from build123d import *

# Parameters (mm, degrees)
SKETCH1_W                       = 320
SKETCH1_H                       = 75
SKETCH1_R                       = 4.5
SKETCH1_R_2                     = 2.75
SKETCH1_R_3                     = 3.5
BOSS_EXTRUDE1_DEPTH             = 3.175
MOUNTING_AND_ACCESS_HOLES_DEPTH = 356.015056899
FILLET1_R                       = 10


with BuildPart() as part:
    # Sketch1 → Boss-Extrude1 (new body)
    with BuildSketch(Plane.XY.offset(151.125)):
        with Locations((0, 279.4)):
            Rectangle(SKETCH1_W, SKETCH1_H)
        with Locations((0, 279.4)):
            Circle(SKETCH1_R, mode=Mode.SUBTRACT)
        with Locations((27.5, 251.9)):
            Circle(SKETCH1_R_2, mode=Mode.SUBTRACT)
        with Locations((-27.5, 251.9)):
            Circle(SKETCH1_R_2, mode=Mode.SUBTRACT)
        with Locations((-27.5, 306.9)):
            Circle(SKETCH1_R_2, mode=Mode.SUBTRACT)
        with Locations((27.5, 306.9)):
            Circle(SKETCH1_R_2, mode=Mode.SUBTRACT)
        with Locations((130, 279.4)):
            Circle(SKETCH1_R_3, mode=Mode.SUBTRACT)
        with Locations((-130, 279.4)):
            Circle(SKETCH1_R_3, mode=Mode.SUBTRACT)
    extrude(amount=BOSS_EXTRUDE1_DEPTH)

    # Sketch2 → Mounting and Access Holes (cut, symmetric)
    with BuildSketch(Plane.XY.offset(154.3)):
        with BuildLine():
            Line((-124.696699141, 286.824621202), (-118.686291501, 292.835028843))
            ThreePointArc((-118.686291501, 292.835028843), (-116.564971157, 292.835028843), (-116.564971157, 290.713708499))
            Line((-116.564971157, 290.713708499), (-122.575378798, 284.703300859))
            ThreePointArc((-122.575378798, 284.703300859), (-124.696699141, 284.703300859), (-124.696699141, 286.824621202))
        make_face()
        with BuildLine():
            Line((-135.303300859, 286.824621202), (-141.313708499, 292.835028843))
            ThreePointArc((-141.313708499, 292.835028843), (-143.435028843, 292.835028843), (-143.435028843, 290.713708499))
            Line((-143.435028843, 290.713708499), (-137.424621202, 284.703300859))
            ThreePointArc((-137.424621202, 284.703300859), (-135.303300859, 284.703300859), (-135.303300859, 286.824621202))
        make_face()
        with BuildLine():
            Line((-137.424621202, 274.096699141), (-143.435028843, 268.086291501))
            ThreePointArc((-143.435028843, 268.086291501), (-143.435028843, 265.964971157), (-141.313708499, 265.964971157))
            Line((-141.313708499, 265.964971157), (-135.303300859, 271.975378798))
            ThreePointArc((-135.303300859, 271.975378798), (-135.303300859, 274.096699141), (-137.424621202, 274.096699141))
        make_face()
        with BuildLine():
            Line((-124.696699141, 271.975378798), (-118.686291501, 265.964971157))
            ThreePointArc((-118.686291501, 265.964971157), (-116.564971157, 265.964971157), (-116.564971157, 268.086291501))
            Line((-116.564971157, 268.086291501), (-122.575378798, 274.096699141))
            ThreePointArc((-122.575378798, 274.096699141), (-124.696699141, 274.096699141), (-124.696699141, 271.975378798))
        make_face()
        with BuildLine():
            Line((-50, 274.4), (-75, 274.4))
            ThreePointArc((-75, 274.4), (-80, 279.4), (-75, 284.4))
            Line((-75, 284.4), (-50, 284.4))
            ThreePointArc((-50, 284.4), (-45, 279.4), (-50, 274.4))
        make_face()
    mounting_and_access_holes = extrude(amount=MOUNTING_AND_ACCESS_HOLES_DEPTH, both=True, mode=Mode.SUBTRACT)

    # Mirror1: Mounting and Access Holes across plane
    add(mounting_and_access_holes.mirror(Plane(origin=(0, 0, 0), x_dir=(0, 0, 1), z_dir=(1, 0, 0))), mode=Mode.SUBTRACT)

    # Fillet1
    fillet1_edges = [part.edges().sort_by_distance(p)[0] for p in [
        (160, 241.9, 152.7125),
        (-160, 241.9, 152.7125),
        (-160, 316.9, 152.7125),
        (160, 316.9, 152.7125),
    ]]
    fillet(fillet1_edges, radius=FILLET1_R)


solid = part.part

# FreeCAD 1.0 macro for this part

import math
import FreeCAD as App
import Part
import Sketcher

V = App.Vector


def edges_at(feature, points):
    """Names of the edges that pass closest to the given points."""
    edges = feature.Shape.Edges
    near = lambda p: min(range(len(edges)), key=lambda i: edges[i].distToShape(Part.Vertex(*p))[0])
    return sorted({f"Edge{near(p) + 1}" for p in points})

doc = App.newDocument("Part")
body = doc.addObject("PartDesign::Body", "Body")

# Sketch on XY plane
sketch1 = doc.addObject("Sketcher::SketchObject", "Sketch")
body.addObject(sketch1)
sketch1.AttachmentSupport = (doc.XY_Plane, [""])
sketch1.MapMode = "FlatFace"
sketch1.AttachmentOffset = App.Placement(V(0, 0, 151.125), App.Rotation())
sketch1.addGeometry(Part.LineSegment(V(-160, 316.9, 0), V(-160, 241.9, 0)), False)
sketch1.addGeometry(Part.LineSegment(V(-160, 241.9, 0), V(160, 241.9, 0)), False)
sketch1.addGeometry(Part.LineSegment(V(160, 241.9, 0), V(160, 316.9, 0)), False)
sketch1.addGeometry(Part.LineSegment(V(160, 316.9, 0), V(-160, 316.9, 0)), False)
sketch1.addGeometry(Part.Circle(V(-27.5, 251.9, 0), V(0, 0, 1), 2.8), False)
sketch1.addGeometry(Part.Circle(V(-130, 279.4, 0), V(0, 0, 1), 3.5), False)
sketch1.addGeometry(Part.Circle(V(27.5, 251.9, 0), V(0, 0, 1), 2.8), False)
sketch1.addGeometry(Part.Circle(V(0, 279.4, 0), V(0, 0, 1), 4.5), False)
sketch1.addGeometry(Part.Circle(V(130, 279.4, 0), V(0, 0, 1), 3.5), False)
sketch1.addGeometry(Part.Circle(V(-27.5, 306.9, 0), V(0, 0, 1), 2.8), False)
sketch1.addGeometry(Part.Circle(V(27.5, 306.9, 0), V(0, 0, 1), 2.8), False)
sketch1.addConstraint(Sketcher.Constraint("Coincident", 0, 2, 1, 1))
sketch1.addConstraint(Sketcher.Constraint("Coincident", 1, 2, 2, 1))
sketch1.addConstraint(Sketcher.Constraint("Coincident", 2, 2, 3, 1))
sketch1.addConstraint(Sketcher.Constraint("Coincident", 3, 2, 0, 1))
sketch1.addConstraint(Sketcher.Constraint("Vertical", 0))
sketch1.addConstraint(Sketcher.Constraint("Horizontal", 1))
sketch1.addConstraint(Sketcher.Constraint("Vertical", 2))
sketch1.addConstraint(Sketcher.Constraint("Horizontal", 3))
sketch1.addConstraint(Sketcher.Constraint("Equal", 4, 6))
sketch1.addConstraint(Sketcher.Constraint("Equal", 5, 8))
sketch1.addConstraint(Sketcher.Constraint("Equal", 6, 9))
sketch1.addConstraint(Sketcher.Constraint("Equal", 9, 10))
sketch1.addConstraint(Sketcher.Constraint("Symmetric", 4, 3, 6, 3, -2))
sketch1.addConstraint(Sketcher.Constraint("Symmetric", 5, 3, 8, 3, -2))
sketch1.addConstraint(Sketcher.Constraint("Symmetric", 9, 3, 10, 3, -2))
sketch1.addConstraint(Sketcher.Constraint("PointOnObject", 7, 3, -2))
sketch1.addConstraint(Sketcher.Constraint("Horizontal", 5, 3, 7, 3))
sketch1.addConstraint(Sketcher.Constraint("Vertical", 4, 3, 9, 3))
sketch1.addConstraint(Sketcher.Constraint("Diameter", 5, 7.0))
sketch1.addConstraint(Sketcher.Constraint("Diameter", 7, 9.0))
sketch1.addConstraint(Sketcher.Constraint("Diameter", 4, 5.5))
sketch1.addConstraint(Sketcher.Constraint("DistanceX", 1, 1, 1, 2, 320.0))
sketch1.addConstraint(Sketcher.Constraint("DistanceY", 0, 2, 0, 1, 75.0))
sketch1.addConstraint(Sketcher.Constraint("DistanceX", 5, 3, -1, 1, 130.0))
sketch1.addConstraint(Sketcher.Constraint("DistanceX", 0, 2, -1, 1, 160.0))
sketch1.addConstraint(Sketcher.Constraint("DistanceX", 4, 3, 6, 3, 55.0))
sketch1.addConstraint(Sketcher.Constraint("DistanceY", 4, 3, 9, 3, 55.0))
sketch1.addConstraint(Sketcher.Constraint("DistanceY", 0, 2, 4, 3, 10.0))
sketch1.addConstraint(Sketcher.Constraint("DistanceY", -1, 1, 4, 3, 251.9))
sketch1.addConstraint(Sketcher.Constraint("DistanceY", -1, 1, 5, 3, 279.4))
pad1 = doc.addObject("PartDesign::Pad", "Pad")
body.addObject(pad1)
pad1.Profile = sketch1
pad1.Length = 3.175

# Sketch on XY plane
sketch2 = doc.addObject("Sketcher::SketchObject", "Sketch001")
body.addObject(sketch2)
sketch2.AttachmentSupport = (doc.XY_Plane, [""])
sketch2.MapMode = "FlatFace"
sketch2.AttachmentOffset = App.Placement(V(0, 0, 154.3), App.Rotation())
sketch2.addGeometry(Part.LineSegment(V(-118.7, 292.8, 0), V(-124.7, 286.8, 0)), False)
sketch2.addGeometry(Part.ArcOfCircle(Part.Circle(V(-123.6, 285.8, 0), V(0, 0, 1), 1.5), math.radians(135), math.radians(315)), False)
sketch2.addGeometry(Part.LineSegment(V(-122.6, 284.7, 0), V(-116.6, 290.7, 0)), False)
sketch2.addGeometry(Part.ArcOfCircle(Part.Circle(V(-117.6, 291.8, 0), V(0, 0, 1), 1.5), math.radians(-45), math.radians(135)), False)
sketch2.addGeometry(Part.LineSegment(V(-135.3, 286.8, 0), V(-141.3, 292.8, 0)), False)
sketch2.addGeometry(Part.ArcOfCircle(Part.Circle(V(-142.4, 291.8, 0), V(0, 0, 1), 1.5), math.radians(45), math.radians(225)), False)
sketch2.addGeometry(Part.LineSegment(V(-143.4, 290.7, 0), V(-137.4, 284.7, 0)), False)
sketch2.addGeometry(Part.ArcOfCircle(Part.Circle(V(-136.4, 285.8, 0), V(0, 0, 1), 1.5), math.radians(-135), math.radians(45)), False)
sketch2.addGeometry(Part.LineSegment(V(-137.4, 274.1, 0), V(-143.4, 268.1, 0)), False)
sketch2.addGeometry(Part.ArcOfCircle(Part.Circle(V(-142.4, 267, 0), V(0, 0, 1), 1.5), math.radians(135), math.radians(315)), False)
sketch2.addGeometry(Part.LineSegment(V(-141.3, 266, 0), V(-135.3, 272, 0)), False)
sketch2.addGeometry(Part.ArcOfCircle(Part.Circle(V(-136.4, 273, 0), V(0, 0, 1), 1.5), math.radians(-45), math.radians(135)), False)
sketch2.addGeometry(Part.LineSegment(V(-124.7, 272, 0), V(-118.7, 266, 0)), False)
sketch2.addGeometry(Part.ArcOfCircle(Part.Circle(V(-117.6, 267, 0), V(0, 0, 1), 1.5), math.radians(-135), math.radians(45)), False)
sketch2.addGeometry(Part.LineSegment(V(-116.6, 268.1, 0), V(-122.6, 274.1, 0)), False)
sketch2.addGeometry(Part.ArcOfCircle(Part.Circle(V(-123.6, 273, 0), V(0, 0, 1), 1.5), math.radians(45), math.radians(225)), False)
sketch2.addGeometry(Part.LineSegment(V(-75, 274.4, 0), V(-50, 274.4, 0)), False)
sketch2.addGeometry(Part.ArcOfCircle(Part.Circle(V(-50, 279.4, 0), V(0, 0, 1), 5), math.radians(-90), math.radians(90)), False)
sketch2.addGeometry(Part.LineSegment(V(-50, 284.4, 0), V(-75, 284.4, 0)), False)
sketch2.addGeometry(Part.ArcOfCircle(Part.Circle(V(-75, 279.4, 0), V(0, 0, 1), 5), math.radians(90), math.radians(270)), False)
sketch2.addConstraint(Sketcher.Constraint("Tangent", 0, 2, 1, 1))
sketch2.addConstraint(Sketcher.Constraint("Tangent", 1, 2, 2, 1))
sketch2.addConstraint(Sketcher.Constraint("Tangent", 2, 2, 3, 1))
sketch2.addConstraint(Sketcher.Constraint("Tangent", 3, 2, 0, 1))
sketch2.addConstraint(Sketcher.Constraint("Tangent", 4, 2, 5, 1))
sketch2.addConstraint(Sketcher.Constraint("Tangent", 5, 2, 6, 1))
sketch2.addConstraint(Sketcher.Constraint("Tangent", 6, 2, 7, 1))
sketch2.addConstraint(Sketcher.Constraint("Tangent", 7, 2, 4, 1))
sketch2.addConstraint(Sketcher.Constraint("Tangent", 8, 2, 9, 1))
sketch2.addConstraint(Sketcher.Constraint("Tangent", 9, 2, 10, 1))
sketch2.addConstraint(Sketcher.Constraint("Tangent", 10, 2, 11, 1))
sketch2.addConstraint(Sketcher.Constraint("Tangent", 11, 2, 8, 1))
sketch2.addConstraint(Sketcher.Constraint("Tangent", 12, 2, 13, 1))
sketch2.addConstraint(Sketcher.Constraint("Tangent", 13, 2, 14, 1))
sketch2.addConstraint(Sketcher.Constraint("Tangent", 14, 2, 15, 1))
sketch2.addConstraint(Sketcher.Constraint("Tangent", 15, 2, 12, 1))
sketch2.addConstraint(Sketcher.Constraint("Tangent", 16, 2, 17, 1))
sketch2.addConstraint(Sketcher.Constraint("Tangent", 17, 2, 18, 1))
sketch2.addConstraint(Sketcher.Constraint("Tangent", 18, 2, 19, 1))
sketch2.addConstraint(Sketcher.Constraint("Tangent", 19, 2, 16, 1))
sketch2.addConstraint(Sketcher.Constraint("Horizontal", 16))
sketch2.addConstraint(Sketcher.Constraint("Horizontal", 18))
sketch2.addConstraint(Sketcher.Constraint("Equal", 1, 3))
sketch2.addConstraint(Sketcher.Constraint("Equal", 3, 5))
sketch2.addConstraint(Sketcher.Constraint("Equal", 5, 7))
sketch2.addConstraint(Sketcher.Constraint("Equal", 7, 9))
sketch2.addConstraint(Sketcher.Constraint("Equal", 9, 11))
sketch2.addConstraint(Sketcher.Constraint("Equal", 11, 13))
sketch2.addConstraint(Sketcher.Constraint("Equal", 13, 15))
sketch2.addConstraint(Sketcher.Constraint("Perpendicular", 2, 4))
sketch2.addConstraint(Sketcher.Constraint("Perpendicular", 6, 8))
sketch2.addConstraint(Sketcher.Constraint("Perpendicular", 10, 12))
sketch2.addConstraint(Sketcher.Constraint("Horizontal", 3, 3, 5, 3))
sketch2.addConstraint(Sketcher.Constraint("Horizontal", 1, 3, 7, 3))
sketch2.addConstraint(Sketcher.Constraint("Horizontal", 9, 3, 13, 3))
sketch2.addConstraint(Sketcher.Constraint("Horizontal", 11, 3, 15, 3))
sketch2.addConstraint(Sketcher.Constraint("Horizontal", 3, 2, 4, 2))
sketch2.addConstraint(Sketcher.Constraint("Vertical", 5, 3, 9, 3))
sketch2.addConstraint(Sketcher.Constraint("Vertical", 7, 3, 11, 3))
sketch2.addConstraint(Sketcher.Constraint("Vertical", 3, 3, 13, 3))
sketch2.addConstraint(Sketcher.Constraint("Radius", 17, 5.0))
sketch2.addConstraint(Sketcher.Constraint("Radius", 1, 1.5))
sketch2.addConstraint(Sketcher.Constraint("DistanceX", 16, 1, 16, 2, 25.0))
sketch2.addConstraint(Sketcher.Constraint("DistanceX", 17, 3, -1, 1, 50.0))
sketch2.addConstraint(Sketcher.Constraint("Distance", 0, 8.5))
sketch2.addConstraint(Sketcher.Constraint("DistanceY", -1, 1, 17, 3, 279.4))
sketch2.addConstraint(Sketcher.Constraint("DistanceX", 0, 2, -1, 1, 124.696699))
sketch2.addConstraint(Sketcher.Constraint("DistanceY", -1, 1, 1, 2, 284.703301))
sketch2.addConstraint(Sketcher.Constraint("DistanceX", 7, 2, -1, 1, 135.303301))
sketch2.addConstraint(Sketcher.Constraint("DistanceY", -1, 1, 11, 2, 274.096699))
pocket1 = doc.addObject("PartDesign::Pocket", "Pocket")
body.addObject(pocket1)
pocket1.Profile = sketch2
pocket1.Length = 712.030114
pocket1.Midplane = True
doc.recompute()

mirrored = doc.addObject("PartDesign::Mirrored", "Mirrored")
body.addObject(mirrored)
mirrored.Originals = [pocket1]
mirrored.MirrorPlane = (doc.YZ_Plane, [""])
body.Tip = mirrored
doc.recompute()

fillet = doc.addObject("PartDesign::Fillet", "Fillet")
body.addObject(fillet)
fillet.Base = (mirrored, edges_at(mirrored, [
    (160, 241.9, 152.713),
    (-160, 241.9, 152.713),
    (-160, 316.9, 152.713),
    (160, 316.9, 152.713),
]))
fillet.Radius = 10

doc.recompute()
